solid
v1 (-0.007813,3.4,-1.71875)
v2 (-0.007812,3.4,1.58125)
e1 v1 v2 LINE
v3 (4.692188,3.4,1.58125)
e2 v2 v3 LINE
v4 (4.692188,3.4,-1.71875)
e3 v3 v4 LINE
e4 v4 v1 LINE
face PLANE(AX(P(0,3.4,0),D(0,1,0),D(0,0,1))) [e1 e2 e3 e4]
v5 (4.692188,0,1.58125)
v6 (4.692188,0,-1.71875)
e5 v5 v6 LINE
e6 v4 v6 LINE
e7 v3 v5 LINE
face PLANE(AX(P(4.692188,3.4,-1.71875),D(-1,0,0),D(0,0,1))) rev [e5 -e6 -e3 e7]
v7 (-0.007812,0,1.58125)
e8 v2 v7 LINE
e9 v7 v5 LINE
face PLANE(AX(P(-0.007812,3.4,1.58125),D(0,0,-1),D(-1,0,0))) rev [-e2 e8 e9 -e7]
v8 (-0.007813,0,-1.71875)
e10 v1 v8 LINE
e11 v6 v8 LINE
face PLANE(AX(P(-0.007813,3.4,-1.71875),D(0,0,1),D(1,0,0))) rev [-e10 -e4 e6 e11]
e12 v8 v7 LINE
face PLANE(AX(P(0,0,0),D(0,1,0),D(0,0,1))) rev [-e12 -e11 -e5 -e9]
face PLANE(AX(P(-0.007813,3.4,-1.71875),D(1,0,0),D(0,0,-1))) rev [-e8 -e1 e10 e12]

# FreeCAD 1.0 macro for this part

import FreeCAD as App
import Part
import Sketcher

V = App.Vector


def add_polygon(sketch, points):
    """Adds a closed chain of lines whose ends are joined by coincident constraints."""
    first, n = sketch.GeometryCount, len(points)
    for a, b in zip(points, points[1:] + points[:1]):
        sketch.addGeometry(Part.LineSegment(App.Vector(*a, 0), App.Vector(*b, 0)), False)
    for i in range(n):
        sketch.addConstraint(Sketcher.Constraint("Coincident", first + i, 2, first + (i + 1) % n, 1))

doc = App.newDocument("Part")
body = doc.addObject("PartDesign::Body", "Body")

sketch1 = doc.addObject("Sketcher::SketchObject", "Sketch")
body.addObject(sketch1)
sketch1.AttachmentSupport = (doc.XZ_Plane, [""])
sketch1.MapMode = "FlatFace"
add_polygon(sketch1, [(0, -1.7), (0, 1.6), (4.7, 1.6), (4.7, -1.7)])
sketch1.addConstraint(Sketcher.Constraint("Vertical", 0))
sketch1.addConstraint(Sketcher.Constraint("Horizontal", 1))
sketch1.addConstraint(Sketcher.Constraint("Vertical", 2))
sketch1.addConstraint(Sketcher.Constraint("Horizontal", 3))
sketch1.addConstraint(Sketcher.Constraint("DistanceX", 1, 1, 1, 2, 4.7))
sketch1.addConstraint(Sketcher.Constraint("DistanceY", 0, 1, 0, 2, 3.3))
sketch1.addConstraint(Sketcher.Constraint("DistanceY", -1, 1, 0, 2, 1.58125))
sketch1.addConstraint(Sketcher.Constraint("DistanceX", 0, 2, -1, 1, 0.007812))
pad1 = doc.addObject("PartDesign::Pad", "Pad")
body.addObject(pad1)
pad1.Profile = sketch1
pad1.Length = 3.4
pad1.Reversed = True

doc.recompute()
